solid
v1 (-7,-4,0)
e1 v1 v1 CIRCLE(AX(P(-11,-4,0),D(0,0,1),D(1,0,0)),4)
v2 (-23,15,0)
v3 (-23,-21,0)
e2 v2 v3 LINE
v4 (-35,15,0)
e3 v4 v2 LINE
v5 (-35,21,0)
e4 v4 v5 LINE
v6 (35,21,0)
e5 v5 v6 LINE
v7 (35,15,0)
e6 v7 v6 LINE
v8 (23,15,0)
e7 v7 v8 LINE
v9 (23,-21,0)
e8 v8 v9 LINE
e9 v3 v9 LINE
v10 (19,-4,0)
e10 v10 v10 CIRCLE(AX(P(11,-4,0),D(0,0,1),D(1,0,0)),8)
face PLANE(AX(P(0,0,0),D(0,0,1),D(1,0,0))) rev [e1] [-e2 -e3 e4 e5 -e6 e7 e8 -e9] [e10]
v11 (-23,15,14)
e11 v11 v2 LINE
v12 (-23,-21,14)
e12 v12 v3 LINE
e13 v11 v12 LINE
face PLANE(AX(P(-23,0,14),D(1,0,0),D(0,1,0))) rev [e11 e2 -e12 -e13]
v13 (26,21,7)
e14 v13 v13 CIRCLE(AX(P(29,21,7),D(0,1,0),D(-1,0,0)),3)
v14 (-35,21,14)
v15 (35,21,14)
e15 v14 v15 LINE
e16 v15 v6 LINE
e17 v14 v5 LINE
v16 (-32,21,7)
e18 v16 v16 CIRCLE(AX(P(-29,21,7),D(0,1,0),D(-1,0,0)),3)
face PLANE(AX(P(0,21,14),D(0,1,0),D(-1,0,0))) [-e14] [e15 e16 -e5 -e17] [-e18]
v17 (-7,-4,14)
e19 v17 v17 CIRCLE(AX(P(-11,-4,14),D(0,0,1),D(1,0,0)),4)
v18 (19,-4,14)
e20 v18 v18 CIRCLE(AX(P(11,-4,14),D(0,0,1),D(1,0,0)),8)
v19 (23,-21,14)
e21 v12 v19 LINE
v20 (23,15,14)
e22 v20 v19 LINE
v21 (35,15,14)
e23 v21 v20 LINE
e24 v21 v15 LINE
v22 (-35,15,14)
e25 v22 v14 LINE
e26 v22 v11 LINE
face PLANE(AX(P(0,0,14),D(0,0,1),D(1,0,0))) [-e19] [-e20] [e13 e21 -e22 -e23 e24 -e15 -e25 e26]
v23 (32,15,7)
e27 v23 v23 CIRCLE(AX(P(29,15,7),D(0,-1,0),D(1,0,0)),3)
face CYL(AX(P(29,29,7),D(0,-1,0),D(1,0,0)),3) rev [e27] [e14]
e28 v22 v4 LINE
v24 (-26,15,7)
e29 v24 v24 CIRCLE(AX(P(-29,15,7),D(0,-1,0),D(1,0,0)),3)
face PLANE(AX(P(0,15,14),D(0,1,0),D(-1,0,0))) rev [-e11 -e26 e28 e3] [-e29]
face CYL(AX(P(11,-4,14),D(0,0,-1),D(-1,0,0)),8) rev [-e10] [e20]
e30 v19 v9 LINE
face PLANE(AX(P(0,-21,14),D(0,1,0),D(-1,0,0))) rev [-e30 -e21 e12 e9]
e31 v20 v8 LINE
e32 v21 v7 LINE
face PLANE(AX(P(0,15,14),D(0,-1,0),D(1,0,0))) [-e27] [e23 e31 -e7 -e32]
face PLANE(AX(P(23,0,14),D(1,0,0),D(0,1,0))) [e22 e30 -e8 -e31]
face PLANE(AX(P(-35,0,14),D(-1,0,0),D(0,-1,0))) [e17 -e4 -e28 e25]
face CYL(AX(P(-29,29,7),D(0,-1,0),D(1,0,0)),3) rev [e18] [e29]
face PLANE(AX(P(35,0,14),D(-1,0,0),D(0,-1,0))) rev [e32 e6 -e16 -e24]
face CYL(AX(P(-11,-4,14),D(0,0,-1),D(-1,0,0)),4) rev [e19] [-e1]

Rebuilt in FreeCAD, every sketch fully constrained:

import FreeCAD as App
import Part
import Sketcher
Q = App.Units.Quantity

doc = App.newDocument("Part")
params = doc.addObject("Spreadsheet::Sheet", "Params")
for row, (alias, value) in enumerate([
    ("sketch1_diameter", "8 mm"),
    ("sketch1_diameter2", "16 mm"),
    ("sketch1_width", "12 mm"),
    ("sketch1_width2", "46 mm"),
    ("sketch1_height", "6 mm"),
    ("pad1_length", "14 mm"),
    ("sketch2_diameter", "6 mm"),
    ("pocket1_length", "14 mm"),
], start=1):
    params.set(f"A{row}", alias)
    params.set(f"B{row}", "=" + value)
    params.setAlias(f"B{row}", alias)

body = doc.addObject("PartDesign::Body", "Body")

sketch1 = body.newObject("Sketcher::SketchObject", "Sketch")
sketch1.AttachmentSupport = (doc.getObject("XY_Plane"), [""])
sketch1.MapMode = "FlatFace"
sketch1.addGeometry(Part.LineSegment(App.Vector(-35, 21, 0), App.Vector(-35, 15, 0)), False)
sketch1.addGeometry(Part.LineSegment(App.Vector(-35, 15, 0), App.Vector(-23, 15, 0)), False)
sketch1.addGeometry(Part.LineSegment(App.Vector(-23, 15, 0), App.Vector(-23, -21, 0)), False)
sketch1.addGeometry(Part.LineSegment(App.Vector(-23, -21, 0), App.Vector(23, -21, 0)), False)
sketch1.addGeometry(Part.LineSegment(App.Vector(23, -21, 0), App.Vector(23, 15, 0)), False)
sketch1.addGeometry(Part.LineSegment(App.Vector(23, 15, 0), App.Vector(35, 15, 0)), False)
sketch1.addGeometry(Part.LineSegment(App.Vector(35, 15, 0), App.Vector(35, 21, 0)), False)
sketch1.addGeometry(Part.LineSegment(App.Vector(35, 21, 0), App.Vector(-35, 21, 0)), False)
sketch1.addGeometry(Part.Circle(App.Vector(-11, -4, 0), App.Vector(0, 0, 1), 4), False)
sketch1.addGeometry(Part.Circle(App.Vector(11, -4, 0), App.Vector(0, 0, 1), 8), False)
sketch1.addConstraint(Sketcher.Constraint("Coincident", 0, 2, 1, 1))
sketch1.addConstraint(Sketcher.Constraint("Coincident", 1, 2, 2, 1))
sketch1.addConstraint(Sketcher.Constraint("Coincident", 2, 2, 3, 1))
sketch1.addConstraint(Sketcher.Constraint("Coincident", 3, 2, 4, 1))
sketch1.addConstraint(Sketcher.Constraint("Coincident", 4, 2, 5, 1))
sketch1.addConstraint(Sketcher.Constraint("Coincident", 5, 2, 6, 1))
sketch1.addConstraint(Sketcher.Constraint("Coincident", 6, 2, 7, 1))
sketch1.addConstraint(Sketcher.Constraint("Coincident", 7, 2, 0, 1))
sketch1.addConstraint(Sketcher.Constraint("Vertical", 0))
sketch1.addConstraint(Sketcher.Constraint("Horizontal", 1))
sketch1.addConstraint(Sketcher.Constraint("Vertical", 2))
sketch1.addConstraint(Sketcher.Constraint("Horizontal", 3))
sketch1.addConstraint(Sketcher.Constraint("Vertical", 4))
sketch1.addConstraint(Sketcher.Constraint("Horizontal", 5))
sketch1.addConstraint(Sketcher.Constraint("Vertical", 6))
sketch1.addConstraint(Sketcher.Constraint("Horizontal", 7))
sketch1.addConstraint(Sketcher.Constraint("Symmetric", 8, 3, 9, 3, -2))
sketch1.addConstraint(Sketcher.Constraint("Symmetric", 1, 2, 4, 2, -2))
sketch1.addConstraint(Sketcher.Constraint("Equal", 1, 5))
sketch1.addConstraint(Sketcher.Constraint("Diameter", 8, Q("8 mm")))
sketch1.addConstraint(Sketcher.Constraint("Diameter", 9, Q("16 mm")))
sketch1.addConstraint(Sketcher.Constraint("DistanceX", 1, 1, 1, 2, Q("12 mm")))
sketch1.addConstraint(Sketcher.Constraint("DistanceX", 3, 1, 3, 2, Q("46 mm")))
sketch1.addConstraint(Sketcher.Constraint("DistanceY", 0, 2, 0, 1, Q("6 mm")))
sketch1.addConstraint(Sketcher.Constraint("DistanceY", 2, 2, 2, 1, Q("36 mm")))
sketch1.addConstraint(Sketcher.Constraint("DistanceX", 8, 3, -1, 1, Q("11 mm")))
sketch1.addConstraint(Sketcher.Constraint("DistanceY", 8, 3, -1, 1, Q("4 mm")))
sketch1.addConstraint(Sketcher.Constraint("DistanceY", -1, 1, 0, 2, Q("15 mm")))
sketch1.setExpression("Constraints[19]", "Params.sketch1_diameter")
sketch1.setExpression("Constraints[20]", "Params.sketch1_diameter2")
sketch1.setExpression("Constraints[21]", "Params.sketch1_width")
sketch1.setExpression("Constraints[22]", "Params.sketch1_width2")
sketch1.setExpression("Constraints[23]", "Params.sketch1_height")
pad1 = body.newObject("PartDesign::Pad", "Pad")
pad1.Profile = sketch1
pad1.setExpression("Length", "Params.pad1_length")

sketch2 = body.newObject("Sketcher::SketchObject", "Sketch001")
sketch2.AttachmentSupport = (doc.getObject("XZ_Plane"), [""])
sketch2.MapMode = "FlatFace"
sketch2.AttachmentOffset = App.Placement(App.Vector(0, 0, -15), App.Rotation())
sketch2.addGeometry(Part.Circle(App.Vector(-29, 7, 0), App.Vector(0, 0, 1), 3), False)
sketch2.addGeometry(Part.Circle(App.Vector(29, 7, 0), App.Vector(0, 0, 1), 3), False)
sketch2.addConstraint(Sketcher.Constraint("Equal", 0, 1))
sketch2.addConstraint(Sketcher.Constraint("Symmetric", 0, 3, 1, 3, -2))
sketch2.addConstraint(Sketcher.Constraint("Diameter", 0, Q("6 mm")))
sketch2.addConstraint(Sketcher.Constraint("DistanceX", 0, 3, -1, 1, Q("29 mm")))
sketch2.addConstraint(Sketcher.Constraint("DistanceY", -1, 1, 0, 3, Q("7 mm")))
sketch2.setExpression("Constraints[2]", "Params.sketch2_diameter")
pocket1 = body.newObject("PartDesign::Pocket", "Pocket")
pocket1.Profile = sketch2
pocket1.setExpression("Length", "Params.pocket1_length")

doc.recompute()
